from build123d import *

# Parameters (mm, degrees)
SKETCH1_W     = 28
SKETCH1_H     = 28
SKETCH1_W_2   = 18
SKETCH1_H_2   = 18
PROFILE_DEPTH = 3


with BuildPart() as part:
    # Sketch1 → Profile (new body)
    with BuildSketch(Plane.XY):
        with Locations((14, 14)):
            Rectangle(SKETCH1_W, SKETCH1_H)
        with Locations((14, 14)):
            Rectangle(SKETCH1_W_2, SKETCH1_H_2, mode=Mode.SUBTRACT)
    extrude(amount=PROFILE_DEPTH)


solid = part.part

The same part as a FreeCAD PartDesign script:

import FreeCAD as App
import Part
import Sketcher
from FreeCAD import Vector


def add_polygon(sketch, points):
    """Adds a closed chain of lines whose ends are joined by coincident constraints."""
    first, n = sketch.GeometryCount, len(points)
    for a, b in zip(points, points[1:] + points[:1]):
        sketch.addGeometry(Part.LineSegment(App.Vector(*a, 0), App.Vector(*b, 0)), False)
    for i in range(n):
        sketch.addConstraint(Sketcher.Constraint("Coincident", first + i, 2, first + (i + 1) % n, 1))

doc = App.newDocument("Part")
body = doc.addObject("PartDesign::Body", "Body")

# Sketch on XY plane
sketch1 = body.newObject("Sketcher::SketchObject", "Sketch")
sketch1.AttachmentSupport = (doc.getObject("XY_Plane"), [""])
sketch1.MapMode = "FlatFace"
add_polygon(sketch1, [(0, 28), (0, 0), (28, 0), (28, 28)])  # lines 0-3
add_polygon(sketch1, [(23, 5), (5, 5), (5, 23), (23, 23)])  # lines 4-7
sketch1.addConstraint(Sketcher.Constraint("Vertical", 0))
sketch1.addConstraint(Sketcher.Constraint("Horizontal", 1))
sketch1.addConstraint(Sketcher.Constraint("Vertical", 2))
sketch1.addConstraint(Sketcher.Constraint("Horizontal", 3))
sketch1.addConstraint(Sketcher.Constraint("Horizontal", 4))
sketch1.addConstraint(Sketcher.Constraint("Vertical", 5))
sketch1.addConstraint(Sketcher.Constraint("Horizontal", 6))
sketch1.addConstraint(Sketcher.Constraint("Vertical", 7))
sketch1.addConstraint(Sketcher.Constraint("Coincident", 0, 2, -1, 1))
sketch1.addConstraint(Sketcher.Constraint("Equal", 3, 0))
sketch1.addConstraint(Sketcher.Constraint("Equal", 6, 5))
sketch1.addConstraint(Sketcher.Constraint("DistanceX", 1, 1, 1, 2, 28.0))
sketch1.addConstraint(Sketcher.Constraint("DistanceX", 4, 2, 4, 1, 18.0))
sketch1.addConstraint(Sketcher.Constraint("DistanceX", -1, 1, 4, 2, 5.0))
sketch1.addConstraint(Sketcher.Constraint("DistanceY", -1, 1, 4, 2, 5.0))
pad1 = body.newObject("PartDesign::Pad", "Pad")
pad1.Profile = sketch1
pad1.Length = 3

doc.recompute()
